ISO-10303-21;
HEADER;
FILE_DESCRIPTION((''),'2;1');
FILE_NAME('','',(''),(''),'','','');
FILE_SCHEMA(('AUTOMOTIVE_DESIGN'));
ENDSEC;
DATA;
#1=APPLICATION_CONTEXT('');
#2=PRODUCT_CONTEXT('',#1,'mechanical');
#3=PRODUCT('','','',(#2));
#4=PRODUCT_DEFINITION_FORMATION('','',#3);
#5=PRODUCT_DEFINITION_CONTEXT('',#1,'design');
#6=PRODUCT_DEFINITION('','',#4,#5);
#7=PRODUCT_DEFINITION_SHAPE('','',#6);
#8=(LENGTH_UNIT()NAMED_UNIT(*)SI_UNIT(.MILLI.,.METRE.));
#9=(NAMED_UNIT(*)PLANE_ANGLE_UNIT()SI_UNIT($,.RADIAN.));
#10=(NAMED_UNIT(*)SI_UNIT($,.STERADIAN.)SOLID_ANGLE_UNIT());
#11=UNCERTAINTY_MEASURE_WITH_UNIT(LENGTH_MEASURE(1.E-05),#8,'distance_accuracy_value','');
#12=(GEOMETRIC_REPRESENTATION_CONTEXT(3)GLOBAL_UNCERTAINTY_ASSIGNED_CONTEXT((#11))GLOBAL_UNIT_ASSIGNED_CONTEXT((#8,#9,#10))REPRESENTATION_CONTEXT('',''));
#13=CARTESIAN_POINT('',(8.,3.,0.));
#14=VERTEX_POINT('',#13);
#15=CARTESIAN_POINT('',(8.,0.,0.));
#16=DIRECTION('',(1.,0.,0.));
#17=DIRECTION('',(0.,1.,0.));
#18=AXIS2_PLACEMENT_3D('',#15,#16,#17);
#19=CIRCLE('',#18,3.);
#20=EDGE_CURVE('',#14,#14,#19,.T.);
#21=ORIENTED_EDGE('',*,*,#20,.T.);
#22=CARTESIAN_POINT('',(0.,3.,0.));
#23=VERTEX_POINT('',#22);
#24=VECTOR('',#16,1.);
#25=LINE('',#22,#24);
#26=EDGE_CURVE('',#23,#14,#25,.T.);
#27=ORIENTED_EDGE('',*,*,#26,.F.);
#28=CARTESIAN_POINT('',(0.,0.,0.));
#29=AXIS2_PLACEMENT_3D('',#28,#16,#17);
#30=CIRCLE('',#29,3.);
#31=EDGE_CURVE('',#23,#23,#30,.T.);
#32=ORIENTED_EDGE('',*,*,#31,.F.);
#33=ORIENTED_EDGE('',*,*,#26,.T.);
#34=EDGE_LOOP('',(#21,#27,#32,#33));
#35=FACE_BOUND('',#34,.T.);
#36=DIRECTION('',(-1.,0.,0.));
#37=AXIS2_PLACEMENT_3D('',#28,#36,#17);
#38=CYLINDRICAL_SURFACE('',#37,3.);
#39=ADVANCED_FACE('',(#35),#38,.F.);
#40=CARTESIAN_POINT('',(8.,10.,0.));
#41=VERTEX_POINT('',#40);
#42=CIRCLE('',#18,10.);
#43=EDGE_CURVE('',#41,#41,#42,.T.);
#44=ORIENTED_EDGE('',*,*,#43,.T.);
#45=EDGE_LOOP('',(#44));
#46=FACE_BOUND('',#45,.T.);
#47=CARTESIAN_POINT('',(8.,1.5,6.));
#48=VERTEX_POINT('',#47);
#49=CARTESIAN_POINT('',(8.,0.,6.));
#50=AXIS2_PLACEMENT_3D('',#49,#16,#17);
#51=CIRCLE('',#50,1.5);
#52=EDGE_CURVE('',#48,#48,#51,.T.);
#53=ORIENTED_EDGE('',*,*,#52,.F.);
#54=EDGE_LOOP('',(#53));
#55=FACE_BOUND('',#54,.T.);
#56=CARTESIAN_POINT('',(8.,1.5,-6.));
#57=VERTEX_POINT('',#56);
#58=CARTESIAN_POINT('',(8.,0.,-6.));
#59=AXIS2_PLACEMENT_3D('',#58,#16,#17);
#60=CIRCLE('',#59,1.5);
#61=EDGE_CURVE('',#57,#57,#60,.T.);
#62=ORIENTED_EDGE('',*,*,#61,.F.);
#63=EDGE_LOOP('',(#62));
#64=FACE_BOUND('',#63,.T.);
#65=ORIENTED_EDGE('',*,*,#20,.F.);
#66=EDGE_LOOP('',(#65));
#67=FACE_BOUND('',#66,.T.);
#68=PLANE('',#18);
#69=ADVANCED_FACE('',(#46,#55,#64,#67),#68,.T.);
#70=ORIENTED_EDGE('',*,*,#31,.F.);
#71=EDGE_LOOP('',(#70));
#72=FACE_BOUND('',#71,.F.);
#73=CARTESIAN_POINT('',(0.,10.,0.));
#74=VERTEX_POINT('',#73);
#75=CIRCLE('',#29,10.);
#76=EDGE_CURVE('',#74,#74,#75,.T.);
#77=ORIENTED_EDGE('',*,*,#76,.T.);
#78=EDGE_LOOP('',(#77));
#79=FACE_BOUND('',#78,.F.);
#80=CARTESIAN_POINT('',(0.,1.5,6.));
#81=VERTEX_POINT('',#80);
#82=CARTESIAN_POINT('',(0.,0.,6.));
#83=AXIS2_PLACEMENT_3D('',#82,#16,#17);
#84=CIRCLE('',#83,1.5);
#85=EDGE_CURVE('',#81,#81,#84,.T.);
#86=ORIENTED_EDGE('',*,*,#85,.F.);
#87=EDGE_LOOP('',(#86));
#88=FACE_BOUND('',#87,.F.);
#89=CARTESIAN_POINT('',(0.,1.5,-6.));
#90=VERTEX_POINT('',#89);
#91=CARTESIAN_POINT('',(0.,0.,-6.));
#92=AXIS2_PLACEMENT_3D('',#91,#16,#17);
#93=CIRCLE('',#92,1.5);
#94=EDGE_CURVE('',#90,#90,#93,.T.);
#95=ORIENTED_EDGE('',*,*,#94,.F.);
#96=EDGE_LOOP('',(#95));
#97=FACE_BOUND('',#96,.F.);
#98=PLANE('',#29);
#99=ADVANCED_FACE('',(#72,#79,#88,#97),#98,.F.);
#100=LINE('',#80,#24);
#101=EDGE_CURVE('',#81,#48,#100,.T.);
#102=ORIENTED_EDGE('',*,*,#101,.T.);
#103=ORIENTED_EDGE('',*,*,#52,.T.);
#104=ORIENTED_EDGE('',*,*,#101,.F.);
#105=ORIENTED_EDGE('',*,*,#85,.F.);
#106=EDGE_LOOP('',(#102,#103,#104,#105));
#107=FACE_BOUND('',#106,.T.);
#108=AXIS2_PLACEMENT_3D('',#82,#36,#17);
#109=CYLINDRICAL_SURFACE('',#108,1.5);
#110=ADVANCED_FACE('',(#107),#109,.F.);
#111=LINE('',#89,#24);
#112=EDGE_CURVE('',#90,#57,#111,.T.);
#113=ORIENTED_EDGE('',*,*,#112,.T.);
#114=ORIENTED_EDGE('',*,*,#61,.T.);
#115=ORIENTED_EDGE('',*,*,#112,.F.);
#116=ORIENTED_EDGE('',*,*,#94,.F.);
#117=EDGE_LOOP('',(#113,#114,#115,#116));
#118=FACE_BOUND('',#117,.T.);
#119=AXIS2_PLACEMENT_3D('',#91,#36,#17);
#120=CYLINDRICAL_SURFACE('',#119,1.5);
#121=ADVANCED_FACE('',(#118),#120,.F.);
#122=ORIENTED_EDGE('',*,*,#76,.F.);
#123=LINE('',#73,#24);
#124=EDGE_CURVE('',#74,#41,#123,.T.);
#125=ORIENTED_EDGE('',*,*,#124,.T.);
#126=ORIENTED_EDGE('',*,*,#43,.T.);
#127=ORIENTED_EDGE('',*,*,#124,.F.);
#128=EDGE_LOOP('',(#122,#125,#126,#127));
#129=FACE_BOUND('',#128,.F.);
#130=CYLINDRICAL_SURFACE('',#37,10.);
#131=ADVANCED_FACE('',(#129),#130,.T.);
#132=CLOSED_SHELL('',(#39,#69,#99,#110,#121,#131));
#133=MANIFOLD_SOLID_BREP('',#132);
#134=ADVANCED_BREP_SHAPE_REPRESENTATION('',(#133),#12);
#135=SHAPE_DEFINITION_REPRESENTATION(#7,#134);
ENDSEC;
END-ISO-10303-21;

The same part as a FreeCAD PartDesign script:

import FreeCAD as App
import Part
import Sketcher

V = App.Vector

doc = App.newDocument("Part")
body = doc.addObject("PartDesign::Body", "Body")

sketch1 = doc.addObject("Sketcher::SketchObject", "Sketch")
body.addObject(sketch1)
sketch1.AttachmentSupport = (doc.YZ_Plane, [""])
sketch1.MapMode = "FlatFace"
sketch1.addGeometry(Part.Circle(V(0, 0, 0), V(0, 0, 1), 10), False)
sketch1.addGeometry(Part.Circle(V(0, -6, 0), V(0, 0, 1), 1.5), False)
sketch1.addGeometry(Part.Circle(V(0, 0, 0), V(0, 0, 1), 3), False)
sketch1.addGeometry(Part.Circle(V(0, 6, 0), V(0, 0, 1), 1.5), False)
sketch1.addConstraint(Sketcher.Constraint("Coincident", 0, 3, -1, 1))
sketch1.addConstraint(Sketcher.Constraint("Coincident", 2, 3, -1, 1))
sketch1.addConstraint(Sketcher.Constraint("Equal", 1, 3))
sketch1.addConstraint(Sketcher.Constraint("Symmetric", 1, 3, 3, 3, -1, 1))
sketch1.addConstraint(Sketcher.Constraint("PointOnObject", 1, 3, -2))
sketch1.addConstraint(Sketcher.Constraint("Diameter", 0, 20.0))
sketch1.addConstraint(Sketcher.Constraint("Diameter", 1, 3.0))
sketch1.addConstraint(Sketcher.Constraint("Diameter", 2, 6.0))
sketch1.addConstraint(Sketcher.Constraint("DistanceY", 1, 3, -1, 1, 6.0))
pad1 = doc.addObject("PartDesign::Pad", "Pad")
body.addObject(pad1)
pad1.Profile = sketch1
pad1.Length = 8

doc.recompute()
